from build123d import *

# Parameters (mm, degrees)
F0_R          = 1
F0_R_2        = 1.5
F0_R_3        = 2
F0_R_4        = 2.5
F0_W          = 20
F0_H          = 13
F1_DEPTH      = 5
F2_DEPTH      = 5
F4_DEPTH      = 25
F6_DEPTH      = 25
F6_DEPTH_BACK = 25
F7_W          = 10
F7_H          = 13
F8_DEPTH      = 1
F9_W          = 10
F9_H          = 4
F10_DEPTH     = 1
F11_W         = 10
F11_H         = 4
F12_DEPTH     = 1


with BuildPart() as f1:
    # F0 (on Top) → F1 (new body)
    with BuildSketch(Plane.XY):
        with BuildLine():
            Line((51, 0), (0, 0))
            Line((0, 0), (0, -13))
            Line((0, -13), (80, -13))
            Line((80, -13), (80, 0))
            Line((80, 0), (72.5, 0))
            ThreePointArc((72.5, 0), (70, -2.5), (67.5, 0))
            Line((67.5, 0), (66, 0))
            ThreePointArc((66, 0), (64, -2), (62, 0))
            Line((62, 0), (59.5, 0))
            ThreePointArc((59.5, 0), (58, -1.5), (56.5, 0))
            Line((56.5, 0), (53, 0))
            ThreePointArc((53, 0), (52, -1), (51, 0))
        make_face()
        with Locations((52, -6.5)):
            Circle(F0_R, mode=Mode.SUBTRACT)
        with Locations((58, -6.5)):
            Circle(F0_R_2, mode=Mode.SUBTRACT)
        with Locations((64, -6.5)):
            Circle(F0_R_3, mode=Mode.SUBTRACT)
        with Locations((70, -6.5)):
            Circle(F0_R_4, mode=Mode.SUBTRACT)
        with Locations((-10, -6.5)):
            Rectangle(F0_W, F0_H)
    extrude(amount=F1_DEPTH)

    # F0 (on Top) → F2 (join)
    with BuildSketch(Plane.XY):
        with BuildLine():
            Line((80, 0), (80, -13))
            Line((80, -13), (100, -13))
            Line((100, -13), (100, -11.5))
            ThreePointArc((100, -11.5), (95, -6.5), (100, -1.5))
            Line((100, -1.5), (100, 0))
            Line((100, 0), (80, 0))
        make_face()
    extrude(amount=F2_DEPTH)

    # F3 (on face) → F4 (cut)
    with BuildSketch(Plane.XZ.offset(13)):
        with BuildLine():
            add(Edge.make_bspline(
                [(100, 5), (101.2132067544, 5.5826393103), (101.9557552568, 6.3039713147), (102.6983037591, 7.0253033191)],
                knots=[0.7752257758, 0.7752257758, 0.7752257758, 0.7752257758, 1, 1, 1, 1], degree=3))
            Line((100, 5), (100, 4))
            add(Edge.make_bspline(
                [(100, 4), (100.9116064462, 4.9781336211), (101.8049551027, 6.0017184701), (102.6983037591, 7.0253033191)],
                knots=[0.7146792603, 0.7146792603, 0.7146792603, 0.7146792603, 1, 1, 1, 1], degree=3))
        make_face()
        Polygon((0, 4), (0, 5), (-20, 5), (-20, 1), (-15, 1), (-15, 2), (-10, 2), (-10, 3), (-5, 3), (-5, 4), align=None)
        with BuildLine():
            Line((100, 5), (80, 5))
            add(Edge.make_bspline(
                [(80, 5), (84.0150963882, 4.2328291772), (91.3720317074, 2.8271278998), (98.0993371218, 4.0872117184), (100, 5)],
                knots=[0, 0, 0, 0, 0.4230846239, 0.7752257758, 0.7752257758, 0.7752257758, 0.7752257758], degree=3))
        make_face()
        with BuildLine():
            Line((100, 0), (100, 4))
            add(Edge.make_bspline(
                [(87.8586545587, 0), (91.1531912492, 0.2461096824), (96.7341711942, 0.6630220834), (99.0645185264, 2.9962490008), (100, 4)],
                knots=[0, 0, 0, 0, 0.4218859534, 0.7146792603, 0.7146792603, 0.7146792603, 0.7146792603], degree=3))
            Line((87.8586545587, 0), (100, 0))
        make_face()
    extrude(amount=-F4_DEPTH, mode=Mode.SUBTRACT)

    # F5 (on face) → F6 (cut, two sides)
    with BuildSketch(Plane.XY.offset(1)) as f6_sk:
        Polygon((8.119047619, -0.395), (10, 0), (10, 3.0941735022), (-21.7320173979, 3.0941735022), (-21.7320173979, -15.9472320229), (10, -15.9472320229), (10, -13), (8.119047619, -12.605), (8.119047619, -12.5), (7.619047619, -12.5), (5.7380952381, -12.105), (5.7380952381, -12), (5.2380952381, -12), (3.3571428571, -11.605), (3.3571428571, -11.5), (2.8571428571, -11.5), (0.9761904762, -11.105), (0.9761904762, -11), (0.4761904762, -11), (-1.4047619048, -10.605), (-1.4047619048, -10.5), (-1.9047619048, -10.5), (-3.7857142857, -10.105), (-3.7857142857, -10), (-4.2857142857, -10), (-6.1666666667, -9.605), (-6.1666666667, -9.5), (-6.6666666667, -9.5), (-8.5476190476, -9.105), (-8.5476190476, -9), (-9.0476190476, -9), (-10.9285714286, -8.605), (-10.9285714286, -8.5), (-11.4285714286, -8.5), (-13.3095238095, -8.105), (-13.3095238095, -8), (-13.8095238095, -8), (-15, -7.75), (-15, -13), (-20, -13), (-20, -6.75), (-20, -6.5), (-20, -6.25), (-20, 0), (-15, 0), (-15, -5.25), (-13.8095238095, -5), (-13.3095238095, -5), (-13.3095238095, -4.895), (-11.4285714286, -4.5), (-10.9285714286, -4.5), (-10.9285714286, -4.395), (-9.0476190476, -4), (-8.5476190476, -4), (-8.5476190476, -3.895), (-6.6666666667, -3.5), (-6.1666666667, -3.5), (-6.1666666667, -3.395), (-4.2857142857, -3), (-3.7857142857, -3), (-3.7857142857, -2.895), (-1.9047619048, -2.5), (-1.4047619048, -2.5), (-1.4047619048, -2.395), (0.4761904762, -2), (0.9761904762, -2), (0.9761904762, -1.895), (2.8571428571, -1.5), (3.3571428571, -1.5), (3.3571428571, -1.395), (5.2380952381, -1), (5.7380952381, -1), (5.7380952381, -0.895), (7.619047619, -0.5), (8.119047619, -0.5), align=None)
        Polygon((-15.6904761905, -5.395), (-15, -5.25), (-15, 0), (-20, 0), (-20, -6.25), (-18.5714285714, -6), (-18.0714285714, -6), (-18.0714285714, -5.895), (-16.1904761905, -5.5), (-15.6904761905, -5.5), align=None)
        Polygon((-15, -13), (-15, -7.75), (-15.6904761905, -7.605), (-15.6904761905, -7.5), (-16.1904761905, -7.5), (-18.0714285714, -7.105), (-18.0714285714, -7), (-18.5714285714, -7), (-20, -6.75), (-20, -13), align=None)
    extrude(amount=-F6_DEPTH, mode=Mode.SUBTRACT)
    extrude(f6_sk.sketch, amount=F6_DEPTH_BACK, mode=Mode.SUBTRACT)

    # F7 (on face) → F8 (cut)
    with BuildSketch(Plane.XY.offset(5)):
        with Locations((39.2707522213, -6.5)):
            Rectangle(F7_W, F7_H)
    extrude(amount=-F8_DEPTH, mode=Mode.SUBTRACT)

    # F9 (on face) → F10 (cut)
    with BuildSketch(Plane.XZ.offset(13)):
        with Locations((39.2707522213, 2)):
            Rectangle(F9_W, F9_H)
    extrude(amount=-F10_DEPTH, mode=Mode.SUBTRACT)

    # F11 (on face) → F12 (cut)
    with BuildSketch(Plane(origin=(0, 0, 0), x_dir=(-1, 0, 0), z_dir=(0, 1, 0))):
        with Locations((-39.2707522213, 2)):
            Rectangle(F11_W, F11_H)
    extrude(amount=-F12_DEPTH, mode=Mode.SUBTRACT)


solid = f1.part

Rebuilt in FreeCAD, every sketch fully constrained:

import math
import FreeCAD as App
import Part
import Sketcher

doc = App.newDocument("Part")
body = doc.addObject("PartDesign::Body", "Body")

sketch1 = body.newObject("Sketcher::SketchObject", "Sketch")
sketch1.AttachmentSupport = (doc.getObject("XY_Plane"), [""])
sketch1.MapMode = "FlatFace"
sketch1.addGeometry([
    Part.LineSegment(App.Vector(51, 0, 0), App.Vector(-20, 0, 0)),
    Part.LineSegment(App.Vector(-20, 0, 0), App.Vector(-20, -13, 0)),
    Part.LineSegment(App.Vector(-20, -13, 0), App.Vector(80, -13, 0)),
    Part.LineSegment(App.Vector(80, -13, 0), App.Vector(80, 0, 0)),
    Part.LineSegment(App.Vector(80, 0, 0), App.Vector(72.5, 0, 0)),
    Part.ArcOfCircle(Part.Circle(App.Vector(70, 0, 0), App.Vector(0, 0, 1), 2.5), math.radians(180), math.radians(360)),
    Part.LineSegment(App.Vector(67.5, 0, 0), App.Vector(66, 0, 0)),
    Part.ArcOfCircle(Part.Circle(App.Vector(64, 0, 0), App.Vector(0, 0, 1), 2), math.radians(180), math.radians(360)),
    Part.LineSegment(App.Vector(62, 0, 0), App.Vector(59.5, 0, 0)),
    Part.ArcOfCircle(Part.Circle(App.Vector(58, 0, 0), App.Vector(0, 0, 1), 1.5), math.radians(180), math.radians(360)),
    Part.LineSegment(App.Vector(56.5, 0, 0), App.Vector(53, 0, 0)),
    Part.ArcOfCircle(Part.Circle(App.Vector(52, 0, 0), App.Vector(0, 0, 1), 1), math.radians(180), math.radians(360)),
    Part.Circle(App.Vector(52, -6.5, 0), App.Vector(0, 0, 1), 1),
    Part.Circle(App.Vector(58, -6.5, 0), App.Vector(0, 0, 1), 1.5),
    Part.Circle(App.Vector(64, -6.5, 0), App.Vector(0, 0, 1), 2),
    Part.Circle(App.Vector(70, -6.5, 0), App.Vector(0, 0, 1), 2.5),
], False)
sketch1.addConstraint([
    Sketcher.Constraint("Coincident", 0, 2, 1, 1),
    Sketcher.Constraint("Coincident", 1, 2, 2, 1),
    Sketcher.Constraint("Coincident", 2, 2, 3, 1),
    Sketcher.Constraint("Coincident", 3, 2, 4, 1),
    Sketcher.Constraint("Coincident", 4, 2, 5, 2),
    Sketcher.Constraint("Coincident", 5, 1, 6, 1),
    Sketcher.Constraint("Coincident", 6, 2, 7, 2),
    Sketcher.Constraint("Coincident", 7, 1, 8, 1),
    Sketcher.Constraint("Coincident", 8, 2, 9, 2),
    Sketcher.Constraint("Coincident", 9, 1, 10, 1),
    Sketcher.Constraint("Coincident", 10, 2, 11, 2),
    Sketcher.Constraint("Coincident", 11, 1, 0, 1),
    Sketcher.Constraint("Horizontal", 0),
    Sketcher.Constraint("Vertical", 1),
    Sketcher.Constraint("Horizontal", 2),
    Sketcher.Constraint("Vertical", 3),
    Sketcher.Constraint("Horizontal", 4),
    Sketcher.Constraint("Horizontal", 6),
    Sketcher.Constraint("Horizontal", 8),
    Sketcher.Constraint("Horizontal", 10),
    Sketcher.Constraint("Equal", 11, 12),
    Sketcher.Constraint("Equal", 9, 13),
    Sketcher.Constraint("Equal", 7, 14),
    Sketcher.Constraint("Equal", 5, 15),
    Sketcher.Constraint("PointOnObject", 5, 3, -1),
    Sketcher.Constraint("PointOnObject", 7, 3, -1),
    Sketcher.Constraint("PointOnObject", 9, 3, -1),
    Sketcher.Constraint("PointOnObject", 11, 3, -1),
    Sketcher.Constraint("PointOnObject", 0, 2, -1),
    Sketcher.Constraint("PointOnObject", 3, 2, -1),
    Sketcher.Constraint("PointOnObject", 5, 1, -1),
    Sketcher.Constraint("PointOnObject", 7, 1, -1),
    Sketcher.Constraint("PointOnObject", 9, 1, -1),
    Sketcher.Constraint("Horizontal", 12, 3, 13, 3),
    Sketcher.Constraint("Horizontal", 13, 3, 14, 3),
    Sketcher.Constraint("Horizontal", 14, 3, 15, 3),
    Sketcher.Constraint("Vertical", 11, 3, 12, 3),
    Sketcher.Constraint("Vertical", 9, 3, 13, 3),
    Sketcher.Constraint("Vertical", 7, 3, 14, 3),
    Sketcher.Constraint("Vertical", 5, 3, 15, 3),
    Sketcher.Constraint("Diameter", 12, 2.0),
    Sketcher.Constraint("Diameter", 13, 3.0),
    Sketcher.Constraint("Diameter", 14, 4.0),
    Sketcher.Constraint("Diameter", 15, 5.0),
    Sketcher.Constraint("DistanceX", 0, 2, 0, 1, 71.0),
    Sketcher.Constraint("DistanceX", 2, 1, 2, 2, 100.0),
    Sketcher.Constraint("DistanceY", 1, 2, 1, 1, 13.0),
    Sketcher.Constraint("DistanceX", 4, 2, 4, 1, 7.5),
    Sketcher.Constraint("DistanceX", 6, 2, 6, 1, 1.5),
    Sketcher.Constraint("DistanceX", 8, 2, 8, 1, 2.5),
    Sketcher.Constraint("DistanceX", -1, 1, 5, 3, 70.0),
    Sketcher.Constraint("DistanceY", 12, 3, -1, 1, 6.5),
])
pad1 = body.newObject("PartDesign::Pad", "Pad")
pad1.Profile = sketch1
pad1.Length = 5

sketch2 = body.newObject("Sketcher::SketchObject", "Sketch001")
sketch2.AttachmentSupport = (doc.getObject("XY_Plane"), [""])
sketch2.MapMode = "FlatFace"
sketch2.addGeometry([
    Part.LineSegment(App.Vector(80, 0, 0), App.Vector(80, -13, 0)),
    Part.LineSegment(App.Vector(80, -13, 0), App.Vector(100, -13, 0)),
    Part.LineSegment(App.Vector(100, -13, 0), App.Vector(100, -11.5, 0)),
    Part.ArcOfCircle(Part.Circle(App.Vector(100, -6.5, 0), App.Vector(0, 0, 1), 5), math.radians(90), math.radians(270)),
    Part.LineSegment(App.Vector(100, -1.5, 0), App.Vector(100, 0, 0)),
    Part.LineSegment(App.Vector(100, 0, 0), App.Vector(80, 0, 0)),
], False)
sketch2.addConstraint([
    Sketcher.Constraint("Coincident", 0, 2, 1, 1),
    Sketcher.Constraint("Coincident", 1, 2, 2, 1),
    Sketcher.Constraint("Coincident", 2, 2, 3, 2),
    Sketcher.Constraint("Coincident", 3, 1, 4, 1),
    Sketcher.Constraint("Coincident", 4, 2, 5, 1),
    Sketcher.Constraint("Coincident", 5, 2, 0, 1),
    Sketcher.Constraint("Vertical", 0),
    Sketcher.Constraint("Horizontal", 1),
    Sketcher.Constraint("Vertical", 2),
    Sketcher.Constraint("Vertical", 4),
    Sketcher.Constraint("Horizontal", 5),
    Sketcher.Constraint("PointOnObject", 4, 2, -1),
    Sketcher.Constraint("Vertical", 3, 3, 1, 2),
    Sketcher.Constraint("Vertical", 2, 2, 3, 1),
    Sketcher.Constraint("Equal", 2, 4),
    Sketcher.Constraint("Radius", 3, 5.0),
    Sketcher.Constraint("DistanceX", 1, 1, 1, 2, 20.0),
    Sketcher.Constraint("DistanceY", 0, 2, 0, 1, 13.0),
    Sketcher.Constraint("DistanceX", -1, 1, 3, 3, 100.0),
])
pad2 = body.newObject("PartDesign::Pad", "Pad001")
pad2.Profile = sketch2
pad2.Length = 5

sketch3 = body.newObject("Sketcher::SketchObject", "Sketch002")
sketch3.AttachmentSupport = (doc.getObject("XZ_Plane"), [""])
sketch3.MapMode = "FlatFace"
sketch3.AttachmentOffset = App.Placement(App.Vector(0, 0, 13), App.Rotation())
sketch3.addGeometry([
    Part.BSplineCurve([App.Vector(100, 5, 0), App.Vector(101.213207, 5.582639, 0), App.Vector(101.955755, 6.303971, 0), App.Vector(102.698304, 7.025303, 0)], [4, 4], [0.775225776, 1], False, 3, [1, 1, 1, 1], False),
    Part.LineSegment(App.Vector(100, 5, 0), App.Vector(100, 4, 0)),
    Part.BSplineCurve([App.Vector(100, 4, 0), App.Vector(100.911606, 4.978134, 0), App.Vector(101.804955, 6.001718, 0), App.Vector(102.698304, 7.025303, 0)], [4, 4], [0.71467926, 1], False, 3, [1, 1, 1, 1], False),
    Part.LineSegment(App.Vector(0, 4, 0), App.Vector(0, 5, 0)),
    Part.LineSegment(App.Vector(0, 5, 0), App.Vector(-20, 5, 0)),
    Part.LineSegment(App.Vector(-20, 5, 0), App.Vector(-20, 1, 0)),
    Part.LineSegment(App.Vector(-20, 1, 0), App.Vector(-15, 1, 0)),
    Part.LineSegment(App.Vector(-15, 1, 0), App.Vector(-15, 2, 0)),
    Part.LineSegment(App.Vector(-15, 2, 0), App.Vector(-10, 2, 0)),
    Part.LineSegment(App.Vector(-10, 2, 0), App.Vector(-10, 3, 0)),
    Part.LineSegment(App.Vector(-10, 3, 0), App.Vector(-5, 3, 0)),
    Part.LineSegment(App.Vector(-5, 3, 0), App.Vector(-5, 4, 0)),
    Part.LineSegment(App.Vector(-5, 4, 0), App.Vector(0, 4, 0)),
    Part.LineSegment(App.Vector(100, 5, 0), App.Vector(80, 5, 0)),
    Part.BSplineCurve([App.Vector(80, 5, 0), App.Vector(84.015096, 4.232829, 0), App.Vector(91.372032, 2.827128, 0), App.Vector(98.099337, 4.087212, 0), App.Vector(100, 5, 0)], [4, 1, 4], [0, 0.423084624, 0.775225776], False, 3, [1, 1, 1, 1, 1], False),
    Part.LineSegment(App.Vector(100, 0, 0), App.Vector(100, 4, 0)),
    Part.BSplineCurve([App.Vector(87.858655, 0, 0), App.Vector(91.153191, 0.24611, 0), App.Vector(96.734171, 0.663022, 0), App.Vector(99.064519, 2.996249, 0), App.Vector(100, 4, 0)], [4, 1, 4], [0, 0.421885953, 0.71467926], False, 3, [1, 1, 1, 1, 1], False),
    Part.LineSegment(App.Vector(87.858655, 0, 0), App.Vector(100, 0, 0)),
], False)
sketch3.addConstraint([
    Sketcher.Constraint("Block", 0),
    Sketcher.Constraint("Block", 2),
    Sketcher.Constraint("Block", 14),
    Sketcher.Constraint("Block", 16),
    Sketcher.Constraint("Coincident", 0, 1, 1, 1),
    Sketcher.Constraint("Coincident", 1, 2, 2, 1),
    Sketcher.Constraint("Coincident", 3, 2, 4, 1),
    Sketcher.Constraint("Coincident", 4, 2, 5, 1),
    Sketcher.Constraint("Coincident", 5, 2, 6, 1),
    Sketcher.Constraint("Coincident", 6, 2, 7, 1),
    Sketcher.Constraint("Coincident", 7, 2, 8, 1),
    Sketcher.Constraint("Coincident", 8, 2, 9, 1),
    Sketcher.Constraint("Coincident", 9, 2, 10, 1),
    Sketcher.Constraint("Coincident", 10, 2, 11, 1),
    Sketcher.Constraint("Coincident", 11, 2, 12, 1),
    Sketcher.Constraint("Coincident", 12, 2, 3, 1),
    Sketcher.Constraint("Coincident", 13, 1, 14, 2),
    Sketcher.Constraint("Coincident", 14, 1, 13, 2),
    Sketcher.Constraint("Coincident", 15, 2, 16, 2),
    Sketcher.Constraint("Coincident", 16, 1, 17, 1),
    Sketcher.Constraint("Coincident", 17, 2, 15, 1),
    Sketcher.Constraint("Vertical", 3),
    Sketcher.Constraint("Horizontal", 4),
    Sketcher.Constraint("Vertical", 5),
    Sketcher.Constraint("Horizontal", 6),
    Sketcher.Constraint("Vertical", 7),
    Sketcher.Constraint("Horizontal", 8),
    Sketcher.Constraint("Vertical", 9),
    Sketcher.Constraint("Horizontal", 10),
    Sketcher.Constraint("Vertical", 11),
    Sketcher.Constraint("Horizontal", 12),
    Sketcher.Constraint("Vertical", 15),
    Sketcher.Constraint("Horizontal", 17),
    Sketcher.Constraint("PointOnObject", 3, 2, -2),
    Sketcher.Constraint("DistanceX", 4, 2, 4, 1, 20.0),
    Sketcher.Constraint("DistanceX", 6, 1, 6, 2, 5.0),
    Sketcher.Constraint("DistanceX", 8, 1, 8, 2, 5.0),
    Sketcher.Constraint("DistanceX", 10, 1, 10, 2, 5.0),
    Sketcher.Constraint("DistanceY", 3, 1, 3, 2, 1.0),
    Sketcher.Constraint("DistanceY", 5, 2, 5, 1, 4.0),
    Sketcher.Constraint("DistanceY", 7, 1, 7, 2, 1.0),
    Sketcher.Constraint("DistanceY", 9, 1, 9, 2, 1.0),
    Sketcher.Constraint("DistanceY", -1, 1, 3, 2, 5.0),
])
pocket1 = body.newObject("PartDesign::Pocket", "Pocket")
pocket1.Profile = sketch3
pocket1.Length = 25

sketch4 = body.newObject("Sketcher::SketchObject", "Sketch003")
sketch4.AttachmentSupport = (doc.getObject("XY_Plane"), [""])
sketch4.MapMode = "FlatFace"
sketch4.AttachmentOffset = App.Placement(App.Vector(0, 0, 1), App.Rotation())
sketch4.addGeometry([
    Part.LineSegment(App.Vector(8.119048, -0.395, 0), App.Vector(10, 0, 0)),
    Part.LineSegment(App.Vector(10, 0, 0), App.Vector(10, 3.094174, 0)),
    Part.LineSegment(App.Vector(10, 3.094174, 0), App.Vector(-21.732017, 3.094174, 0)),
    Part.LineSegment(App.Vector(-21.732017, 3.094174, 0), App.Vector(-21.732017, -15.947232, 0)),
    Part.LineSegment(App.Vector(-21.732017, -15.947232, 0), App.Vector(10, -15.947232, 0)),
    Part.LineSegment(App.Vector(10, -15.947232, 0), App.Vector(10, -13, 0)),
    Part.LineSegment(App.Vector(10, -13, 0), App.Vector(8.119048, -12.605, 0)),
    Part.LineSegment(App.Vector(8.119048, -12.605, 0), App.Vector(8.119048, -12.5, 0)),
    Part.LineSegment(App.Vector(8.119048, -12.5, 0), App.Vector(7.619048, -12.5, 0)),
    Part.LineSegment(App.Vector(7.619048, -12.5, 0), App.Vector(5.738095, -12.105, 0)),
    Part.LineSegment(App.Vector(5.738095, -12.105, 0), App.Vector(5.738095, -12, 0)),
    Part.LineSegment(App.Vector(5.738095, -12, 0), App.Vector(5.238095, -12, 0)),
    Part.LineSegment(App.Vector(5.238095, -12, 0), App.Vector(3.357143, -11.605, 0)),
    Part.LineSegment(App.Vector(3.357143, -11.605, 0), App.Vector(3.357143, -11.5, 0)),
    Part.LineSegment(App.Vector(3.357143, -11.5, 0), App.Vector(2.857143, -11.5, 0)),
    Part.LineSegment(App.Vector(2.857143, -11.5, 0), App.Vector(0.97619, -11.105, 0)),
    Part.LineSegment(App.Vector(0.97619, -11.105, 0), App.Vector(0.97619, -11, 0)),
    Part.LineSegment(App.Vector(0.97619, -11, 0), App.Vector(0.47619, -11, 0)),
    Part.LineSegment(App.Vector(0.47619, -11, 0), App.Vector(-1.404762, -10.605, 0)),
    Part.LineSegment(App.Vector(-1.404762, -10.605, 0), App.Vector(-1.404762, -10.5, 0)),
    Part.LineSegment(App.Vector(-1.404762, -10.5, 0), App.Vector(-1.904762, -10.5, 0)),
    Part.LineSegment(App.Vector(-1.904762, -10.5, 0), App.Vector(-3.785714, -10.105, 0)),
    Part.LineSegment(App.Vector(-3.785714, -10.105, 0), App.Vector(-3.785714, -10, 0)),
    Part.LineSegment(App.Vector(-3.785714, -10, 0), App.Vector(-4.285714, -10, 0)),
    Part.LineSegment(App.Vector(-4.285714, -10, 0), App.Vector(-6.166667, -9.605, 0)),
    Part.LineSegment(App.Vector(-6.166667, -9.605, 0), App.Vector(-6.166667, -9.5, 0)),
    Part.LineSegment(App.Vector(-6.166667, -9.5, 0), App.Vector(-6.666667, -9.5, 0)),
    Part.LineSegment(App.Vector(-6.666667, -9.5, 0), App.Vector(-8.547619, -9.105, 0)),
    Part.LineSegment(App.Vector(-8.547619, -9.105, 0), App.Vector(-8.547619, -9, 0)),
    Part.LineSegment(App.Vector(-8.547619, -9, 0), App.Vector(-9.047619, -9, 0)),
    Part.LineSegment(App.Vector(-9.047619, -9, 0), App.Vector(-10.928571, -8.605, 0)),
    Part.LineSegment(App.Vector(-10.928571, -8.605, 0), App.Vector(-10.928571, -8.5, 0)),
    Part.LineSegment(App.Vector(-10.928571, -8.5, 0), App.Vector(-11.428571, -8.5, 0)),
    Part.LineSegment(App.Vector(-11.428571, -8.5, 0), App.Vector(-13.309524, -8.105, 0)),
    Part.LineSegment(App.Vector(-13.309524, -8.105, 0), App.Vector(-13.309524, -8, 0)),
    Part.LineSegment(App.Vector(-13.309524, -8, 0), App.Vector(-13.809524, -8, 0)),
    Part.LineSegment(App.Vector(-13.809524, -8, 0), App.Vector(-15, -7.75, 0)),
    Part.LineSegment(App.Vector(-15, -7.75, 0), App.Vector(-15.690476, -7.605, 0)),
    Part.LineSegment(App.Vector(-15.690476, -7.605, 0), App.Vector(-15.690476, -7.5, 0)),
    Part.LineSegment(App.Vector(-15.690476, -7.5, 0), App.Vector(-16.190476, -7.5, 0)),
    Part.LineSegment(App.Vector(-16.190476, -7.5, 0), App.Vector(-18.071429, -7.105, 0)),
    Part.LineSegment(App.Vector(-18.071429, -7.105, 0), App.Vector(-18.071429, -7, 0)),
    Part.LineSegment(App.Vector(-18.071429, -7, 0), App.Vector(-18.571429, -7, 0)),
    Part.LineSegment(App.Vector(-18.571429, -7, 0), App.Vector(-20, -6.75, 0)),
    Part.LineSegment(App.Vector(-20, -6.75, 0), App.Vector(-20, -6.25, 0)),
    Part.LineSegment(App.Vector(-20, -6.25, 0), App.Vector(-18.571429, -6, 0)),
    Part.LineSegment(App.Vector(-18.571429, -6, 0), App.Vector(-18.071429, -6, 0)),
    Part.LineSegment(App.Vector(-18.071429, -6, 0), App.Vector(-18.071429, -5.895, 0)),
    Part.LineSegment(App.Vector(-18.071429, -5.895, 0), App.Vector(-16.190476, -5.5, 0)),
    Part.LineSegment(App.Vector(-16.190476, -5.5, 0), App.Vector(-15.690476, -5.5, 0)),
    Part.LineSegment(App.Vector(-15.690476, -5.5, 0), App.Vector(-15.690476, -5.395, 0)),
    Part.LineSegment(App.Vector(-15.690476, -5.395, 0), App.Vector(-15, -5.25, 0)),
    Part.LineSegment(App.Vector(-15, -5.25, 0), App.Vector(-13.809524, -5, 0)),
    Part.LineSegment(App.Vector(-13.809524, -5, 0), App.Vector(-13.309524, -5, 0)),
    Part.LineSegment(App.Vector(-13.309524, -5, 0), App.Vector(-13.309524, -4.895, 0)),
    Part.LineSegment(App.Vector(-13.309524, -4.895, 0), App.Vector(-11.428571, -4.5, 0)),
    Part.LineSegment(App.Vector(-11.428571, -4.5, 0), App.Vector(-10.928571, -4.5, 0)),
    Part.LineSegment(App.Vector(-10.928571, -4.5, 0), App.Vector(-10.928571, -4.395, 0)),
    Part.LineSegment(App.Vector(-10.928571, -4.395, 0), App.Vector(-9.047619, -4, 0)),
    Part.LineSegment(App.Vector(-9.047619, -4, 0), App.Vector(-8.547619, -4, 0)),
    Part.LineSegment(App.Vector(-8.547619, -4, 0), App.Vector(-8.547619, -3.895, 0)),
    Part.LineSegment(App.Vector(-8.547619, -3.895, 0), App.Vector(-6.666667, -3.5, 0)),
    Part.LineSegment(App.Vector(-6.666667, -3.5, 0), App.Vector(-6.166667, -3.5, 0)),
    Part.LineSegment(App.Vector(-6.166667, -3.5, 0), App.Vector(-6.166667, -3.395, 0)),
    Part.LineSegment(App.Vector(-6.166667, -3.395, 0), App.Vector(-4.285714, -3, 0)),
    Part.LineSegment(App.Vector(-4.285714, -3, 0), App.Vector(-3.785714, -3, 0)),
    Part.LineSegment(App.Vector(-3.785714, -3, 0), App.Vector(-3.785714, -2.895, 0)),
    Part.LineSegment(App.Vector(-3.785714, -2.895, 0), App.Vector(-1.904762, -2.5, 0)),
    Part.LineSegment(App.Vector(-1.904762, -2.5, 0), App.Vector(-1.404762, -2.5, 0)),
    Part.LineSegment(App.Vector(-1.404762, -2.5, 0), App.Vector(-1.404762, -2.395, 0)),
    Part.LineSegment(App.Vector(-1.404762, -2.395, 0), App.Vector(0.47619, -2, 0)),
    Part.LineSegment(App.Vector(0.47619, -2, 0), App.Vector(0.97619, -2, 0)),
    Part.LineSegment(App.Vector(0.97619, -2, 0), App.Vector(0.97619, -1.895, 0)),
    Part.LineSegment(App.Vector(0.97619, -1.895, 0), App.Vector(2.857143, -1.5, 0)),
    Part.LineSegment(App.Vector(2.857143, -1.5, 0), App.Vector(3.357143, -1.5, 0)),
    Part.LineSegment(App.Vector(3.357143, -1.5, 0), App.Vector(3.357143, -1.395, 0)),
    Part.LineSegment(App.Vector(3.357143, -1.395, 0), App.Vector(5.238095, -1, 0)),
    Part.LineSegment(App.Vector(5.238095, -1, 0), App.Vector(5.738095, -1, 0)),
    Part.LineSegment(App.Vector(5.738095, -1, 0), App.Vector(5.738095, -0.895, 0)),
    Part.LineSegment(App.Vector(5.738095, -0.895, 0), App.Vector(7.619048, -0.5, 0)),
    Part.LineSegment(App.Vector(7.619048, -0.5, 0), App.Vector(8.119048, -0.5, 0)),
    Part.LineSegment(App.Vector(8.119048, -0.5, 0), App.Vector(8.119048, -0.395, 0)),
], False)
sketch4.addConstraint([
    Sketcher.Constraint("Coincident", 0, 2, 1, 1),
    Sketcher.Constraint("Coincident", 1, 2, 2, 1),
    Sketcher.Constraint("Coincident", 2, 2, 3, 1),
    Sketcher.Constraint("Coincident", 3, 2, 4, 1),
    Sketcher.Constraint("Coincident", 4, 2, 5, 1),
    Sketcher.Constraint("Coincident", 5, 2, 6, 1),
    Sketcher.Constraint("Coincident", 6, 2, 7, 1),
    Sketcher.Constraint("Coincident", 7, 2, 8, 1),
    Sketcher.Constraint("Coincident", 8, 2, 9, 1),
    Sketcher.Constraint("Coincident", 9, 2, 10, 1),
    Sketcher.Constraint("Coincident", 10, 2, 11, 1),
    Sketcher.Constraint("Coincident", 11, 2, 12, 1),
    Sketcher.Constraint("Coincident", 12, 2, 13, 1),
    Sketcher.Constraint("Coincident", 13, 2, 14, 1),
    Sketcher.Constraint("Coincident", 14, 2, 15, 1),
    Sketcher.Constraint("Coincident", 15, 2, 16, 1),
    Sketcher.Constraint("Coincident", 16, 2, 17, 1),
    Sketcher.Constraint("Coincident", 17, 2, 18, 1),
    Sketcher.Constraint("Coincident", 18, 2, 19, 1),
    Sketcher.Constraint("Coincident", 19, 2, 20, 1),
    Sketcher.Constraint("Coincident", 20, 2, 21, 1),
    Sketcher.Constraint("Coincident", 21, 2, 22, 1),
    Sketcher.Constraint("Coincident", 22, 2, 23, 1),
    Sketcher.Constraint("Coincident", 23, 2, 24, 1),
    Sketcher.Constraint("Coincident", 24, 2, 25, 1),
    Sketcher.Constraint("Coincident", 25, 2, 26, 1),
    Sketcher.Constraint("Coincident", 26, 2, 27, 1),
    Sketcher.Constraint("Coincident", 27, 2, 28, 1),
    Sketcher.Constraint("Coincident", 28, 2, 29, 1),
    Sketcher.Constraint("Coincident", 29, 2, 30, 1),
    Sketcher.Constraint("Coincident", 30, 2, 31, 1),
    Sketcher.Constraint("Coincident", 31, 2, 32, 1),
    Sketcher.Constraint("Coincident", 32, 2, 33, 1),
    Sketcher.Constraint("Coincident", 33, 2, 34, 1),
    Sketcher.Constraint("Coincident", 34, 2, 35, 1),
    Sketcher.Constraint("Coincident", 35, 2, 36, 1),
    Sketcher.Constraint("Coincident", 36, 2, 37, 1),
    Sketcher.Constraint("Coincident", 37, 2, 38, 1),
    Sketcher.Constraint("Coincident", 38, 2, 39, 1),
    Sketcher.Constraint("Coincident", 39, 2, 40, 1),
    Sketcher.Constraint("Coincident", 40, 2, 41, 1),
    Sketcher.Constraint("Coincident", 41, 2, 42, 1),
    Sketcher.Constraint("Coincident", 42, 2, 43, 1),
    Sketcher.Constraint("Coincident", 43, 2, 44, 1),
    Sketcher.Constraint("Coincident", 44, 2, 45, 1),
    Sketcher.Constraint("Coincident", 45, 2, 46, 1),
    Sketcher.Constraint("Coincident", 46, 2, 47, 1),
    Sketcher.Constraint("Coincident", 47, 2, 48, 1),
    Sketcher.Constraint("Coincident", 48, 2, 49, 1),
    Sketcher.Constraint("Coincident", 49, 2, 50, 1),
    Sketcher.Constraint("Coincident", 50, 2, 51, 1),
    Sketcher.Constraint("Coincident", 51, 2, 52, 1),
    Sketcher.Constraint("Coincident", 52, 2, 53, 1),
    Sketcher.Constraint("Coincident", 53, 2, 54, 1),
    Sketcher.Constraint("Coincident", 54, 2, 55, 1),
    Sketcher.Constraint("Coincident", 55, 2, 56, 1),
    Sketcher.Constraint("Coincident", 56, 2, 57, 1),
    Sketcher.Constraint("Coincident", 57, 2, 58, 1),
    Sketcher.Constraint("Coincident", 58, 2, 59, 1),
    Sketcher.Constraint("Coincident", 59, 2, 60, 1),
    Sketcher.Constraint("Coincident", 60, 2, 61, 1),
    Sketcher.Constraint("Coincident", 61, 2, 62, 1),
    Sketcher.Constraint("Coincident", 62, 2, 63, 1),
    Sketcher.Constraint("Coincident", 63, 2, 64, 1),
    Sketcher.Constraint("Coincident", 64, 2, 65, 1),
    Sketcher.Constraint("Coincident", 65, 2, 66, 1),
    Sketcher.Constraint("Coincident", 66, 2, 67, 1),
    Sketcher.Constraint("Coincident", 67, 2, 68, 1),
    Sketcher.Constraint("Coincident", 68, 2, 69, 1),
    Sketcher.Constraint("Coincident", 69, 2, 70, 1),
    Sketcher.Constraint("Coincident", 70, 2, 71, 1),
    Sketcher.Constraint("Coincident", 71, 2, 72, 1),
    Sketcher.Constraint("Coincident", 72, 2, 73, 1),
    Sketcher.Constraint("Coincident", 73, 2, 74, 1),
    Sketcher.Constraint("Coincident", 74, 2, 75, 1),
    Sketcher.Constraint("Coincident", 75, 2, 76, 1),
    Sketcher.Constraint("Coincident", 76, 2, 77, 1),
    Sketcher.Constraint("Coincident", 77, 2, 78, 1),
    Sketcher.Constraint("Coincident", 78, 2, 79, 1),
    Sketcher.Constraint("Coincident", 79, 2, 80, 1),
    Sketcher.Constraint("Coincident", 80, 2, 81, 1),
    Sketcher.Constraint("Coincident", 81, 2, 0, 1),
    Sketcher.Constraint("Vertical", 1),
    Sketcher.Constraint("Horizontal", 2),
    Sketcher.Constraint("Vertical", 3),
    Sketcher.Constraint("Horizontal", 4),
    Sketcher.Constraint("Vertical", 5),
    Sketcher.Constraint("Vertical", 7),
    Sketcher.Constraint("Horizontal", 8),
    Sketcher.Constraint("Vertical", 10),
    Sketcher.Constraint("Horizontal", 11),
    Sketcher.Constraint("Vertical", 13),
    Sketcher.Constraint("Horizontal", 14),
    Sketcher.Constraint("Vertical", 16),
    Sketcher.Constraint("Horizontal", 17),
    Sketcher.Constraint("Vertical", 19),
    Sketcher.Constraint("Horizontal", 20),
    Sketcher.Constraint("Vertical", 22),
    Sketcher.Constraint("Horizontal", 23),
    Sketcher.Constraint("Vertical", 25),
    Sketcher.Constraint("Horizontal", 26),
    Sketcher.Constraint("Vertical", 28),
    Sketcher.Constraint("Horizontal", 29),
    Sketcher.Constraint("Vertical", 31),
    Sketcher.Constraint("Horizontal", 32),
    Sketcher.Constraint("Vertical", 34),
    Sketcher.Constraint("Horizontal", 35),
    Sketcher.Constraint("Vertical", 38),
    Sketcher.Constraint("Horizontal", 39),
    Sketcher.Constraint("Vertical", 41),
    Sketcher.Constraint("Horizontal", 42),
    Sketcher.Constraint("Vertical", 44),
    Sketcher.Constraint("Horizontal", 46),
    Sketcher.Constraint("Vertical", 47),
    Sketcher.Constraint("Horizontal", 49),
    Sketcher.Constraint("Vertical", 50),
    Sketcher.Constraint("Horizontal", 53),
    Sketcher.Constraint("Vertical", 54),
    Sketcher.Constraint("Horizontal", 56),
    Sketcher.Constraint("Vertical", 57),
    Sketcher.Constraint("Horizontal", 59),
    Sketcher.Constraint("Vertical", 60),
    Sketcher.Constraint("Horizontal", 62),
    Sketcher.Constraint("Vertical", 63),
    Sketcher.Constraint("Horizontal", 65),
    Sketcher.Constraint("Vertical", 66),
    Sketcher.Constraint("Horizontal", 68),
    Sketcher.Constraint("Vertical", 69),
    Sketcher.Constraint("Horizontal", 71),
    Sketcher.Constraint("Vertical", 72),
    Sketcher.Constraint("Horizontal", 74),
    Sketcher.Constraint("Vertical", 75),
    Sketcher.Constraint("Horizontal", 77),
    Sketcher.Constraint("Vertical", 78),
    Sketcher.Constraint("Horizontal", 80),
    Sketcher.Constraint("Vertical", 81),
    Sketcher.Constraint("PointOnObject", 0, 2, -1),
    Sketcher.Constraint("Parallel", 6, 9),
    Sketcher.Constraint("Parallel", 9, 12),
    Sketcher.Constraint("Parallel", 12, 15),
    Sketcher.Constraint("Parallel", 15, 18),
    Sketcher.Constraint("Parallel", 18, 21),
    Sketcher.Constraint("Parallel", 21, 24),
    Sketcher.Constraint("Parallel", 24, 27),
    Sketcher.Constraint("Parallel", 27, 30),
    Sketcher.Constraint("Parallel", 30, 33),
    Sketcher.Constraint("Parallel", 33, 36),
    Sketcher.Constraint("Parallel", 36, 37),
    Sketcher.Constraint("Parallel", 37, 40),
    Sketcher.Constraint("Parallel", 0, 48),
    Sketcher.Constraint("Parallel", 48, 51),
    Sketcher.Constraint("Parallel", 51, 52),
    Sketcher.Constraint("Parallel", 52, 55),
    Sketcher.Constraint("Parallel", 55, 58),
    Sketcher.Constraint("Parallel", 58, 61),
    Sketcher.Constraint("Parallel", 61, 64),
    Sketcher.Constraint("Parallel", 64, 67),
    Sketcher.Constraint("Parallel", 67, 70),
    Sketcher.Constraint("Parallel", 70, 73),
    Sketcher.Constraint("Parallel", 73, 76),
    Sketcher.Constraint("Parallel", 76, 79),
    Sketcher.Constraint("Vertical", 1, 2, 4, 2),
    Sketcher.Constraint("Vertical", 42, 2, 45, 2),
    Sketcher.Constraint("Vertical", 41, 2, 46, 2),
    Sketcher.Constraint("Vertical", 39, 2, 48, 2),
    Sketcher.Constraint("Vertical", 38, 2, 49, 2),
    Sketcher.Constraint("Vertical", 36, 2, 51, 2),
    Sketcher.Constraint("Vertical", 35, 2, 52, 2),
    Sketcher.Constraint("Vertical", 34, 2, 53, 2),
    Sketcher.Constraint("Vertical", 32, 2, 55, 2),
    Sketcher.Constraint("Vertical", 31, 2, 56, 2),
    Sketcher.Constraint("Vertical", 29, 2, 58, 2),
    Sketcher.Constraint("Vertical", 28, 2, 59, 2),
    Sketcher.Constraint("Vertical", 26, 2, 61, 2),
    Sketcher.Constraint("Vertical", 25, 2, 62, 2),
    Sketcher.Constraint("Vertical", 23, 2, 64, 2),
    Sketcher.Constraint("Vertical", 22, 2, 65, 2),
    Sketcher.Constraint("Vertical", 20, 2, 67, 2),
    Sketcher.Constraint("Vertical", 19, 2, 68, 2),
    Sketcher.Constraint("Vertical", 17, 2, 70, 2),
    Sketcher.Constraint("Vertical", 16, 2, 71, 2),
    Sketcher.Constraint("Vertical", 14, 2, 73, 2),
    Sketcher.Constraint("Vertical", 13, 2, 74, 2),
    Sketcher.Constraint("Vertical", 11, 2, 76, 2),
    Sketcher.Constraint("Vertical", 10, 2, 77, 2),
    Sketcher.Constraint("Vertical", 8, 2, 79, 2),
    Sketcher.Constraint("Vertical", 7, 2, 80, 2),
    Sketcher.Constraint("Equal", 8, 11),
    Sketcher.Constraint("Equal", 11, 14),
    Sketcher.Constraint("Equal", 14, 17),
    Sketcher.Constraint("Equal", 17, 20),
    Sketcher.Constraint("Equal", 20, 23),
    Sketcher.Constraint("Equal", 23, 26),
    Sketcher.Constraint("Equal", 26, 29),
    Sketcher.Constraint("Equal", 29, 32),
    Sketcher.Constraint("Equal", 32, 35),
    Sketcher.Constraint("Equal", 35, 39),
    Sketcher.Constraint("Equal", 39, 42),
    Sketcher.Constraint("Equal", 7, 10),
    Sketcher.Constraint("Equal", 10, 13),
    Sketcher.Constraint("Equal", 13, 16),
    Sketcher.Constraint("Equal", 16, 19),
    Sketcher.Constraint("Equal", 19, 22),
    Sketcher.Constraint("Equal", 22, 25),
    Sketcher.Constraint("Equal", 25, 28),
    Sketcher.Constraint("Equal", 28, 31),
    Sketcher.Constraint("Equal", 31, 34),
    Sketcher.Constraint("Equal", 34, 38),
    Sketcher.Constraint("Equal", 38, 41),
    Sketcher.Constraint("Equal", 80, 44),
    Sketcher.Constraint("Equal", 41, 47),
    Sketcher.Constraint("Equal", 47, 50),
    Sketcher.Constraint("Equal", 50, 54),
    Sketcher.Constraint("Equal", 54, 57),
    Sketcher.Constraint("Equal", 57, 60),
    Sketcher.Constraint("Equal", 60, 63),
    Sketcher.Constraint("Equal", 63, 66),
    Sketcher.Constraint("Equal", 66, 69),
    Sketcher.Constraint("Equal", 69, 72),
    Sketcher.Constraint("Equal", 72, 75),
    Sketcher.Constraint("Equal", 75, 78),
    Sketcher.Constraint("Equal", 78, 81),
    Sketcher.Constraint("Equal", 0, 6),
    Sketcher.Constraint("Equal", 6, 9),
    Sketcher.Constraint("Equal", 9, 12),
    Sketcher.Constraint("Equal", 12, 15),
    Sketcher.Constraint("Equal", 15, 18),
    Sketcher.Constraint("Equal", 18, 21),
    Sketcher.Constraint("Equal", 21, 24),
    Sketcher.Constraint("Equal", 24, 27),
    Sketcher.Constraint("Equal", 27, 30),
    Sketcher.Constraint("Equal", 30, 33),
    Sketcher.Constraint("Equal", 33, 40),
    Sketcher.Constraint("Equal", 43, 45),
    Sketcher.Constraint("DistanceX", 8, 2, 8, 1, 0.5),
    Sketcher.Constraint("DistanceX", -1, 1, 0, 2, 10.0),
    Sketcher.Constraint("DistanceY", 5, 2, -1, 1, 13.0),
    Sketcher.Constraint("DistanceY", 10, 2, -1, 1, 12.0),
    Sketcher.Constraint("DistanceX", 36, 2, -1, 1, 15.0),
    Sketcher.Constraint("DistanceY", 41, 2, -1, 1, 7.0),
    Sketcher.Constraint("DistanceX", 43, 2, -1, 1, 20.0),
    Sketcher.Constraint("DistanceY", 7, 1, 7, 2, 0.105),
    Sketcher.Constraint("DistanceY", 36, 2, -1, 1, 7.75),
    Sketcher.Constraint("DistanceX", 2, 2, 2, 1, 31.732017),
    Sketcher.Constraint("DistanceY", 1, 1, 1, 2, 3.094174),
    Sketcher.Constraint("DistanceY", 3, 2, 3, 1, 19.041406),
])
pocket2 = body.newObject("PartDesign::Pocket", "Pocket001")
pocket2.Profile = sketch4
pocket2.Type = "ThroughAll"
pocket2.Midplane = True

sketch5 = body.newObject("Sketcher::SketchObject", "Sketch004")
sketch5.AttachmentSupport = (doc.getObject("XY_Plane"), [""])
sketch5.MapMode = "FlatFace"
sketch5.AttachmentOffset = App.Placement(App.Vector(0, 0, 5), App.Rotation())
sketch5.addGeometry([
    Part.LineSegment(App.Vector(34.270752, 0, 0), App.Vector(34.270752, -13, 0)),
    Part.LineSegment(App.Vector(34.270752, -13, 0), App.Vector(44.270752, -13, 0)),
    Part.LineSegment(App.Vector(44.270752, -13, 0), App.Vector(44.270752, 0, 0)),
    Part.LineSegment(App.Vector(44.270752, 0, 0), App.Vector(34.270752, 0, 0)),
], False)
sketch5.addConstraint([
    Sketcher.Constraint("Coincident", 0, 2, 1, 1),
    Sketcher.Constraint("Coincident", 1, 2, 2, 1),
    Sketcher.Constraint("Coincident", 2, 2, 3, 1),
    Sketcher.Constraint("Coincident", 3, 2, 0, 1),
    Sketcher.Constraint("Vertical", 0),
    Sketcher.Constraint("Horizontal", 1),
    Sketcher.Constraint("Vertical", 2),
    Sketcher.Constraint("Horizontal", 3),
    Sketcher.Constraint("PointOnObject", 2, 2, -1),
    Sketcher.Constraint("DistanceX", 1, 1, 1, 2, 10.0),
    Sketcher.Constraint("DistanceY", 0, 2, 0, 1, 13.0),
    Sketcher.Constraint("DistanceX", -1, 1, 0, 2, 34.270752),
])
pocket3 = body.newObject("PartDesign::Pocket", "Pocket002")
pocket3.Profile = sketch5
pocket3.Length = 1

sketch6 = body.newObject("Sketcher::SketchObject", "Sketch005")
sketch6.AttachmentSupport = (doc.getObject("XZ_Plane"), [""])
sketch6.MapMode = "FlatFace"
sketch6.AttachmentOffset = App.Placement(App.Vector(0, 0, 13), App.Rotation())
sketch6.addGeometry([
    Part.LineSegment(App.Vector(34.270752, 4, 0), App.Vector(34.270752, 0, 0)),
    Part.LineSegment(App.Vector(34.270752, 0, 0), App.Vector(44.270752, 0, 0)),
    Part.LineSegment(App.Vector(44.270752, 0, 0), App.Vector(44.270752, 4, 0)),
    Part.LineSegment(App.Vector(44.270752, 4, 0), App.Vector(34.270752, 4, 0)),
], False)
sketch6.addConstraint([
    Sketcher.Constraint("Coincident", 0, 2, 1, 1),
    Sketcher.Constraint("Coincident", 1, 2, 2, 1),
    Sketcher.Constraint("Coincident", 2, 2, 3, 1),
    Sketcher.Constraint("Coincident", 3, 2, 0, 1),
    Sketcher.Constraint("Vertical", 0),
    Sketcher.Constraint("Horizontal", 1),
    Sketcher.Constraint("Vertical", 2),
    Sketcher.Constraint("Horizontal", 3),
    Sketcher.Constraint("PointOnObject", 0, 2, -1),
    Sketcher.Constraint("DistanceX", 1, 1, 1, 2, 10.0),
    Sketcher.Constraint("DistanceY", 0, 2, 0, 1, 4.0),
    Sketcher.Constraint("DistanceX", -1, 1, 0, 2, 34.270752),
])
pocket4 = body.newObject("PartDesign::Pocket", "Pocket003")
pocket4.Profile = sketch6
pocket4.Length = 1

sketch7 = body.newObject("Sketcher::SketchObject", "Sketch006")
sketch7.AttachmentSupport = (doc.getObject("XZ_Plane"), [""])
sketch7.MapMode = "FlatFace"
sketch7.addGeometry([
    Part.LineSegment(App.Vector(44.270752, 4, 0), App.Vector(44.270752, 0, 0)),
    Part.LineSegment(App.Vector(44.270752, 0, 0), App.Vector(34.270752, 0, 0)),
    Part.LineSegment(App.Vector(34.270752, 0, 0), App.Vector(34.270752, 4, 0)),
    Part.LineSegment(App.Vector(34.270752, 4, 0), App.Vector(44.270752, 4, 0)),
], False)
sketch7.addConstraint([
    Sketcher.Constraint("Coincident", 0, 2, 1, 1),
    Sketcher.Constraint("Coincident", 1, 2, 2, 1),
    Sketcher.Constraint("Coincident", 2, 2, 3, 1),
    Sketcher.Constraint("Coincident", 3, 2, 0, 1),
    Sketcher.Constraint("Vertical", 0),
    Sketcher.Constraint("Horizontal", 1),
    Sketcher.Constraint("Vertical", 2),
    Sketcher.Constraint("Horizontal", 3),
    Sketcher.Constraint("PointOnObject", 0, 2, -1),
    Sketcher.Constraint("DistanceX", 1, 2, 1, 1, 10.0),
    Sketcher.Constraint("DistanceY", 0, 2, 0, 1, 4.0),
    Sketcher.Constraint("DistanceX", -1, 1, 0, 2, 44.270752),
])
pocket5 = body.newObject("PartDesign::Pocket", "Pocket004")
pocket5.Profile = sketch7
pocket5.Length = 1
pocket5.Reversed = True

doc.recompute()
